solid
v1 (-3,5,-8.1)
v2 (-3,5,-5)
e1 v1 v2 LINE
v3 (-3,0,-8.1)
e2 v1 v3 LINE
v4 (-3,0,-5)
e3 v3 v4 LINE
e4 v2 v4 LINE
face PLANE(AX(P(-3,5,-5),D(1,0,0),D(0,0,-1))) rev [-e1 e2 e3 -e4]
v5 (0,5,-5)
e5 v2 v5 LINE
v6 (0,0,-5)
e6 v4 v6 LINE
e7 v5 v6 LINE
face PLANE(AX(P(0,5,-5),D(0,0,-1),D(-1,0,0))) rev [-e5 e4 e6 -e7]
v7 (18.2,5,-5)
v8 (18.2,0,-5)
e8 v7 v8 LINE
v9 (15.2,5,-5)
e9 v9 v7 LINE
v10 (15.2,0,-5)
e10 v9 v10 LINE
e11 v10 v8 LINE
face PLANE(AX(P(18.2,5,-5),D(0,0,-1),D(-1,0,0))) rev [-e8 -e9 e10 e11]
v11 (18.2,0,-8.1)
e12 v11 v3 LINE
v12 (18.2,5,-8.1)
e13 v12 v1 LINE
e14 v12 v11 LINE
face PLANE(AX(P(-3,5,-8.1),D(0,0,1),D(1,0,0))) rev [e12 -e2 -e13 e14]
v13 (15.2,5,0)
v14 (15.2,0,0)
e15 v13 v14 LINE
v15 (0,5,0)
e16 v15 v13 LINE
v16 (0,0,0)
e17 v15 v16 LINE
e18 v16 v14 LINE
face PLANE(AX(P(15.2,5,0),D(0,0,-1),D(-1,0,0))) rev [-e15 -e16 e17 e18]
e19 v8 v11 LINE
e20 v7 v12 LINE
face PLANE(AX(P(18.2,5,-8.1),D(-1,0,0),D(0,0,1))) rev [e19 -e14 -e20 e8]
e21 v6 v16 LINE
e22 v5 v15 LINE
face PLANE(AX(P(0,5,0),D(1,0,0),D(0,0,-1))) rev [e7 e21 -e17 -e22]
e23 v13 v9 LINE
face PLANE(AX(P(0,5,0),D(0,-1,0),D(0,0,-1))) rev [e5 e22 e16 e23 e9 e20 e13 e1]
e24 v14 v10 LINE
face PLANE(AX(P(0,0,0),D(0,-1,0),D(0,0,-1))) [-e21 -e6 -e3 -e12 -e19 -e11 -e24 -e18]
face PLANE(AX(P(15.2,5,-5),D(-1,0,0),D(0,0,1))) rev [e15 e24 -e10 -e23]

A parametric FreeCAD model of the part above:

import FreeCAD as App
import Part
import Sketcher
Q = App.Units.Quantity

doc = App.newDocument("Part")
params = doc.addObject("Spreadsheet::Sheet", "Params")
for row, (alias, value) in enumerate([
    ("sketch1_width", "3 mm"),
    ("sketch1_height", "5 mm"),
    ("sketch1_width2", "15.2 mm"),
    ("sketch1_height2", "3.1 mm"),
    ("pad1_length", "5 mm"),
], start=1):
    params.set(f"A{row}", alias)
    params.set(f"B{row}", "=" + value)
    params.setAlias(f"B{row}", alias)

body = doc.addObject("PartDesign::Body", "Body")

sketch1 = body.newObject("Sketcher::SketchObject", "Sketch")
sketch1.AttachmentSupport = (doc.getObject("XZ_Plane"), [""])
sketch1.MapMode = "FlatFace"
sketch1.addGeometry([
    Part.LineSegment(App.Vector(0, -5, 0), App.Vector(0, 0, 0)),
    Part.LineSegment(App.Vector(0, 0, 0), App.Vector(15.2, 0, 0)),
    Part.LineSegment(App.Vector(15.2, 0, 0), App.Vector(15.2, -5, 0)),
    Part.LineSegment(App.Vector(15.2, -5, 0), App.Vector(18.2, -5, 0)),
    Part.LineSegment(App.Vector(18.2, -5, 0), App.Vector(18.2, -8.1, 0)),
    Part.LineSegment(App.Vector(18.2, -8.1, 0), App.Vector(-3, -8.1, 0)),
    Part.LineSegment(App.Vector(-3, -8.1, 0), App.Vector(-3, -5, 0)),
    Part.LineSegment(App.Vector(-3, -5, 0), App.Vector(0, -5, 0)),
], False)
sketch1.addConstraint([
    Sketcher.Constraint("Coincident", 0, 2, 1, 1),
    Sketcher.Constraint("Coincident", 1, 2, 2, 1),
    Sketcher.Constraint("Coincident", 2, 2, 3, 1),
    Sketcher.Constraint("Coincident", 3, 2, 4, 1),
    Sketcher.Constraint("Coincident", 4, 2, 5, 1),
    Sketcher.Constraint("Coincident", 5, 2, 6, 1),
    Sketcher.Constraint("Coincident", 6, 2, 7, 1),
    Sketcher.Constraint("Coincident", 7, 2, 0, 1),
    Sketcher.Constraint("Vertical", 0),
    Sketcher.Constraint("Horizontal", 1),
    Sketcher.Constraint("Vertical", 2),
    Sketcher.Constraint("Horizontal", 3),
    Sketcher.Constraint("Vertical", 4),
    Sketcher.Constraint("Horizontal", 5),
    Sketcher.Constraint("Vertical", 6),
    Sketcher.Constraint("Horizontal", 7),
    Sketcher.Constraint("Coincident", 0, 2, -1, 1),
    Sketcher.Constraint("Horizontal", 3, 2, 6, 2),
    Sketcher.Constraint("Equal", 3, 7),
    Sketcher.Constraint("DistanceX", 3, 1, 3, 2, Q("3 mm")),
    Sketcher.Constraint("DistanceY", 0, 1, 0, 2, Q("5 mm")),
    Sketcher.Constraint("DistanceX", 1, 1, 1, 2, Q("15.2 mm")),
    Sketcher.Constraint("DistanceY", 4, 2, 4, 1, Q("3.1 mm")),
])
sketch1.setExpression("Constraints[19]", "Params.sketch1_width")
sketch1.setExpression("Constraints[20]", "Params.sketch1_height")
sketch1.setExpression("Constraints[21]", "Params.sketch1_width2")
sketch1.setExpression("Constraints[22]", "Params.sketch1_height2")
pad1 = body.newObject("PartDesign::Pad", "Pad")
pad1.Profile = sketch1
pad1.setExpression("Length", "Params.pad1_length")
pad1.Reversed = True

doc.recompute()
